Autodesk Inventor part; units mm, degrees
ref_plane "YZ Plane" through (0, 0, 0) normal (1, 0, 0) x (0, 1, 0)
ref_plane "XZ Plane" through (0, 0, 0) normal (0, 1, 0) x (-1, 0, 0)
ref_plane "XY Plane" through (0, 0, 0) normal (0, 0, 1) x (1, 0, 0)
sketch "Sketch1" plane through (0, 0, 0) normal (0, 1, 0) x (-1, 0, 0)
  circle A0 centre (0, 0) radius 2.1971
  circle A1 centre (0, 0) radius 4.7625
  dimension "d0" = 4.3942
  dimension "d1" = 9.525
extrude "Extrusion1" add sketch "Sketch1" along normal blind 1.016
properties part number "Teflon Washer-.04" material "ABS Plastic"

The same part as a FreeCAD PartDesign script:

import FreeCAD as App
import Part
import Sketcher
from FreeCAD import Vector
Q = App.Units.Quantity

doc = App.newDocument("Part")
body = doc.addObject("PartDesign::Body", "Body")

sketch1 = body.newObject("Sketcher::SketchObject", "Sketch")
sketch1.AttachmentSupport = (doc.getObject("XZ_Plane"), [""])
sketch1.MapMode = "FlatFace"
sketch1.addGeometry([
    Part.Circle(Vector(0, 0, 0), Vector(0, 0, 1), 4.7625),
    Part.Circle(Vector(0, 0, 0), Vector(0, 0, 1), 2.1971),
], False)
sketch1.addConstraint([
    Sketcher.Constraint("Coincident", 0, 3, -1, 1),
    Sketcher.Constraint("Coincident", 1, 3, -1, 1),
    Sketcher.Constraint("Diameter", 0, Q("0.375 in")),
    Sketcher.Constraint("Diameter", 1, Q("0.173 in")),
])
pad1 = body.newObject("PartDesign::Pad", "Pad")
pad1.Profile = sketch1
pad1.Length = Q("0.04 in")
pad1.Reversed = True

doc.recompute()
